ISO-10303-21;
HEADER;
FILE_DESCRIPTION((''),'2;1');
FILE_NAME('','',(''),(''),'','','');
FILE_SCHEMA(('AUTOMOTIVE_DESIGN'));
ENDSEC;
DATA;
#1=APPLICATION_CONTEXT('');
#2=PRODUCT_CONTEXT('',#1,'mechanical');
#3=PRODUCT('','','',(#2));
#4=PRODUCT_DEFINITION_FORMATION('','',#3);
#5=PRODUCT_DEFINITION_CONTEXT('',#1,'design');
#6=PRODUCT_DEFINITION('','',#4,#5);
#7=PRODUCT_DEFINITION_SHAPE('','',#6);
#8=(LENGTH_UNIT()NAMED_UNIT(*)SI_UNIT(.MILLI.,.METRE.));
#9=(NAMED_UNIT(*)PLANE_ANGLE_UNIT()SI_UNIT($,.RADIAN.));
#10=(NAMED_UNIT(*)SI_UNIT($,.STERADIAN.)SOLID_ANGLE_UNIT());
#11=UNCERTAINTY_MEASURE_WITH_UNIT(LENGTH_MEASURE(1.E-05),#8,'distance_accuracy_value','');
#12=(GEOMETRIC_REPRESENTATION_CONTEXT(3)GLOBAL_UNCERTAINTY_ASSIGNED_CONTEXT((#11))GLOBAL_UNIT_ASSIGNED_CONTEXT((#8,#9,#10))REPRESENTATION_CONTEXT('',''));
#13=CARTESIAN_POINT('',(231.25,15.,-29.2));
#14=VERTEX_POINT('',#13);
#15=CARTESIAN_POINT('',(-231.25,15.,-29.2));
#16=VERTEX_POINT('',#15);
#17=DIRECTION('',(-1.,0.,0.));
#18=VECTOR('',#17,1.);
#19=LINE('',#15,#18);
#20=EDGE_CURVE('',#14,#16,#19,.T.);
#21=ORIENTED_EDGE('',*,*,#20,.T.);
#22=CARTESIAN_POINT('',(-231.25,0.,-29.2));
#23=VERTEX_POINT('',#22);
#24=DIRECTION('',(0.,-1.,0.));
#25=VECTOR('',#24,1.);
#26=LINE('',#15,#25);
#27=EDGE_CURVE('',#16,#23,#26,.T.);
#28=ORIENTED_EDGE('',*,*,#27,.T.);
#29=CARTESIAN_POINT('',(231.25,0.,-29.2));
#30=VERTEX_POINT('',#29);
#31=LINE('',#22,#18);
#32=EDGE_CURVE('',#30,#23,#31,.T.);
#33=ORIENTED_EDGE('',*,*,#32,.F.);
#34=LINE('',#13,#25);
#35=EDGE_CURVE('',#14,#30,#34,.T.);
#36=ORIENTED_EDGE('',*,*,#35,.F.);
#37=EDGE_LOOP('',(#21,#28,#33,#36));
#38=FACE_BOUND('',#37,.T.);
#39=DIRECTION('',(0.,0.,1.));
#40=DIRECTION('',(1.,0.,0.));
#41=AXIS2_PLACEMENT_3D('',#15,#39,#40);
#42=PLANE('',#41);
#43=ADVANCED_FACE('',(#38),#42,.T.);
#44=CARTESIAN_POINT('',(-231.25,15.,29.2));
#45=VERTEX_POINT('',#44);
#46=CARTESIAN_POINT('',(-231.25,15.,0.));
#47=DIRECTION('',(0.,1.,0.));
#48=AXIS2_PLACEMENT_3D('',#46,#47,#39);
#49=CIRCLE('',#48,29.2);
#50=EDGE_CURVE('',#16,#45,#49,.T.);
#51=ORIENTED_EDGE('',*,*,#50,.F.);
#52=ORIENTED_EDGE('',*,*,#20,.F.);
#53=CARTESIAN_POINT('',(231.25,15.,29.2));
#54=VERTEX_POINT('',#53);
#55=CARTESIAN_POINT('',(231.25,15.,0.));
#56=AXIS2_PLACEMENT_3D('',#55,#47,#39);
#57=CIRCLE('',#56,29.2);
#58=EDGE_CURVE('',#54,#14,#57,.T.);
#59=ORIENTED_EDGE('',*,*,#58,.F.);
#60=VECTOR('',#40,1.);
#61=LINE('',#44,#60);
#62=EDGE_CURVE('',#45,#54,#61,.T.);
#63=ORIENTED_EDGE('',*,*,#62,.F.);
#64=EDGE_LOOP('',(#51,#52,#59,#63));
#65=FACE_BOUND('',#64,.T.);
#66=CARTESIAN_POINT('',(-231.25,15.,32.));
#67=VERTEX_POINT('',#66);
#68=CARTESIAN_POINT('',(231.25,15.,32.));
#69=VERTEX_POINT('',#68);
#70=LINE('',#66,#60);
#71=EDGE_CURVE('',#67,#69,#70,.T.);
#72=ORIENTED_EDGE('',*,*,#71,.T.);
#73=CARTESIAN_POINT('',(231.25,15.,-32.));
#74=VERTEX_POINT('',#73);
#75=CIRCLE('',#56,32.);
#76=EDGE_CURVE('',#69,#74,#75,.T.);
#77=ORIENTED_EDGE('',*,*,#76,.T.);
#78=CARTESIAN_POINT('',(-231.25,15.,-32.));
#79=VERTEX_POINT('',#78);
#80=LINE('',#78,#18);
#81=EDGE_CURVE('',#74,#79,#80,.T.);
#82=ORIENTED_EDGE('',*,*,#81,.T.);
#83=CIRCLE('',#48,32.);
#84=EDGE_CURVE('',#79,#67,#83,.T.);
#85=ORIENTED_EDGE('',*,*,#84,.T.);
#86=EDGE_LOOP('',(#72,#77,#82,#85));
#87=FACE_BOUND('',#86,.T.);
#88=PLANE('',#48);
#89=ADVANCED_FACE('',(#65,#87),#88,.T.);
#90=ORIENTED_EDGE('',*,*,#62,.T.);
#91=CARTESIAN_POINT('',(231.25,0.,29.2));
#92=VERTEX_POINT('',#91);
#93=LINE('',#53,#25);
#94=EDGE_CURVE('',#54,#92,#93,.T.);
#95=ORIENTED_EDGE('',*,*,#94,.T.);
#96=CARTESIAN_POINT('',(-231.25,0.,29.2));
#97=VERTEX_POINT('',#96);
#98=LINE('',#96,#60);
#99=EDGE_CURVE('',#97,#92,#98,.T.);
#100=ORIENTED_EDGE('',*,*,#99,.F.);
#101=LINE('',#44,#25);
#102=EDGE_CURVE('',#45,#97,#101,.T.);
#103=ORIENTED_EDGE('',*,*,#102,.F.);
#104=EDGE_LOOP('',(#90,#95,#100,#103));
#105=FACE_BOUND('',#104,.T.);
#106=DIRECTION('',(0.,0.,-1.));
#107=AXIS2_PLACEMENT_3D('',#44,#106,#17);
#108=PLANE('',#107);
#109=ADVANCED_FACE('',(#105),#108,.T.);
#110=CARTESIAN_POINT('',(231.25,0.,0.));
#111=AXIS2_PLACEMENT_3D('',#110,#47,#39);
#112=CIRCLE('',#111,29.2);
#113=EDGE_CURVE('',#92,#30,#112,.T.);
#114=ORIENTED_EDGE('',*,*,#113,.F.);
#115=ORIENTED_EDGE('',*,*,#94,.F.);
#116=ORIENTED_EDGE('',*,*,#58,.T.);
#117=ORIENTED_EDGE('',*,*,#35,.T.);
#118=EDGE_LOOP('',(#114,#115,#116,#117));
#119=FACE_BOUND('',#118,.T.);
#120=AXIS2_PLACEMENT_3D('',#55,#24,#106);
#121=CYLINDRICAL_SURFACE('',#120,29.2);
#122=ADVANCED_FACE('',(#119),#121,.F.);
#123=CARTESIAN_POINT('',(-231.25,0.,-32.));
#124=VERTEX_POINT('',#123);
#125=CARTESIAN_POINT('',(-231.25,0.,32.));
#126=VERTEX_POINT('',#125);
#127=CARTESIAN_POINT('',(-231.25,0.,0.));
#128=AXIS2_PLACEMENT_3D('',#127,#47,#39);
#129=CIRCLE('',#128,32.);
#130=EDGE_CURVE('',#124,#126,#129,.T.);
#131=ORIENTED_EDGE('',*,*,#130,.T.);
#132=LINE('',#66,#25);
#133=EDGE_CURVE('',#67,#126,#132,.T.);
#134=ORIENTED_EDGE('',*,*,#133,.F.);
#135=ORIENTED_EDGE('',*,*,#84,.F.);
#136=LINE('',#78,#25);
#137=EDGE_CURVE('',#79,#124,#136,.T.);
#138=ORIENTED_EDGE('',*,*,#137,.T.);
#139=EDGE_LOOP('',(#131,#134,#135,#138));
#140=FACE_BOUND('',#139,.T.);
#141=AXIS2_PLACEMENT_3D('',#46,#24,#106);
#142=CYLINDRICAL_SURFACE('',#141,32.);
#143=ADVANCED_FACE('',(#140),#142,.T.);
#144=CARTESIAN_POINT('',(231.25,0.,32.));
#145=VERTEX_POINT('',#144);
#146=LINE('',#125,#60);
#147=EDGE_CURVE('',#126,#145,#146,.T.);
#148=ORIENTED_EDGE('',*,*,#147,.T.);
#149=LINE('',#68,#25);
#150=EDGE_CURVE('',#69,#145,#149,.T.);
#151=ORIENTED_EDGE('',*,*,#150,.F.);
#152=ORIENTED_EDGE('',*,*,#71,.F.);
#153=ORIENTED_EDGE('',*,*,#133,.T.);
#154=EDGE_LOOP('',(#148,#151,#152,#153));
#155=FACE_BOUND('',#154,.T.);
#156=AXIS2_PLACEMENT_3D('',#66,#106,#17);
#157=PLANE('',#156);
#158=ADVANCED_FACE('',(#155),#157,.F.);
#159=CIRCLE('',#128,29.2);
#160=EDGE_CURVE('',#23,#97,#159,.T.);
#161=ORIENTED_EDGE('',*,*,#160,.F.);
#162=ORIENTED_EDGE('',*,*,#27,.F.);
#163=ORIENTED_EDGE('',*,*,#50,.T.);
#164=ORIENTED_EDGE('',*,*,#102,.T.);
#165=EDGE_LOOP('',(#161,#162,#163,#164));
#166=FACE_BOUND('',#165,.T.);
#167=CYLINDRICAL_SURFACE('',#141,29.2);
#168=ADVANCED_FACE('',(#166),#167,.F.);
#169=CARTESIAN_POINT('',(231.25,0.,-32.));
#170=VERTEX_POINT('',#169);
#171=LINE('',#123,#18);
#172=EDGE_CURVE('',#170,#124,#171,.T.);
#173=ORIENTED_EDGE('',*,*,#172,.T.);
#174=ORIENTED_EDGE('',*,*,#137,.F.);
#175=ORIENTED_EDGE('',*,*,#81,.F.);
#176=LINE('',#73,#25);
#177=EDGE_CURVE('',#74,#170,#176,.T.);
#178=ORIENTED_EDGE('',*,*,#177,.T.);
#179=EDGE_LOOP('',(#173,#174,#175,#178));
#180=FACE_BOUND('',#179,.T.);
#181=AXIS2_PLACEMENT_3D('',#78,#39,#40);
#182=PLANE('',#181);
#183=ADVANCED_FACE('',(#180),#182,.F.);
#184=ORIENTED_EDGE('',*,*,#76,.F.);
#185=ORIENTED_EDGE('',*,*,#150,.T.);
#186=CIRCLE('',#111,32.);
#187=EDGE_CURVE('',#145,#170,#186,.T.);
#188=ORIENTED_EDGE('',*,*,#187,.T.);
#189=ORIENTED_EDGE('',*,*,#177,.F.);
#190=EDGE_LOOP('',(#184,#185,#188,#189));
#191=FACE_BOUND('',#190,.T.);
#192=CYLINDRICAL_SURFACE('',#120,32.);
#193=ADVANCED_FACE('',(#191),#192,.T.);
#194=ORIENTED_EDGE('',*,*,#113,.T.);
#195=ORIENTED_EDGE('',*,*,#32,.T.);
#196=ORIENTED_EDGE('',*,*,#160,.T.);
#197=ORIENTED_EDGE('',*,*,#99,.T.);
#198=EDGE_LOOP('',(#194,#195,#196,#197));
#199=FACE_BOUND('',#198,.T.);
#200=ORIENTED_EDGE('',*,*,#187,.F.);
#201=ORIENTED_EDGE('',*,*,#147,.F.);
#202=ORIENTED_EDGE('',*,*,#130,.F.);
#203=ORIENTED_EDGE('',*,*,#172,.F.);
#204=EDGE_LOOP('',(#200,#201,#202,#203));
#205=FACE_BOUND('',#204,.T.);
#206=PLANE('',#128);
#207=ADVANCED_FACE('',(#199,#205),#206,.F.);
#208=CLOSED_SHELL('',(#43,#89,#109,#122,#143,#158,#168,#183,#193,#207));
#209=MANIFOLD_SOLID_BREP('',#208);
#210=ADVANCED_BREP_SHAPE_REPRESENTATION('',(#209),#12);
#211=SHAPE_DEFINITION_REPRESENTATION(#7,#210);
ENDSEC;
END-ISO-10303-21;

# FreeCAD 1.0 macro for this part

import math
import FreeCAD as App
import Part
import Sketcher

doc = App.newDocument("Part")
body = doc.addObject("PartDesign::Body", "Body")

sketch1 = body.newObject("Sketcher::SketchObject", "Sketch")
sketch1.AttachmentSupport = (doc.getObject("XZ_Plane"), [""])
sketch1.MapMode = "FlatFace"
sketch1.addGeometry([
    Part.LineSegment(App.Vector(231, -32, 0), App.Vector(-231, -32, 0)),
    Part.ArcOfCircle(Part.Circle(App.Vector(-231, 0, 0), App.Vector(0, 0, 1), 32), math.radians(90), math.radians(270)),
    Part.LineSegment(App.Vector(-231, 32, 0), App.Vector(231, 32, 0)),
    Part.ArcOfCircle(Part.Circle(App.Vector(231, 0, 0), App.Vector(0, 0, 1), 32), math.radians(-90), math.radians(90)),
    Part.LineSegment(App.Vector(-231, -29, 0), App.Vector(231, -29, 0)),
    Part.ArcOfCircle(Part.Circle(App.Vector(231, 0, 0), App.Vector(0, 0, 1), 29), math.radians(-90), math.radians(90)),
    Part.LineSegment(App.Vector(231, 29, 0), App.Vector(-231, 29, 0)),
    Part.ArcOfCircle(Part.Circle(App.Vector(-231, 0, 0), App.Vector(0, 0, 1), 29), math.radians(90), math.radians(270)),
], False)
sketch1.addConstraint([
    Sketcher.Constraint("Tangent", 0, 2, 1, 2),
    Sketcher.Constraint("Tangent", 1, 1, 2, 1),
    Sketcher.Constraint("Tangent", 2, 2, 3, 2),
    Sketcher.Constraint("Tangent", 3, 1, 0, 1),
    Sketcher.Constraint("Tangent", 4, 2, 5, 1),
    Sketcher.Constraint("Tangent", 5, 2, 6, 1),
    Sketcher.Constraint("Tangent", 6, 2, 7, 1),
    Sketcher.Constraint("Tangent", 7, 2, 4, 1),
    Sketcher.Constraint("Horizontal", 0),
    Sketcher.Constraint("Horizontal", 2),
    Sketcher.Constraint("Horizontal", 4),
    Sketcher.Constraint("Horizontal", 6),
    Sketcher.Constraint("Coincident", 5, 3, 3, 3),
    Sketcher.Constraint("Symmetric", 1, 3, 3, 3, -1, 1),
    Sketcher.Constraint("Vertical", 7, 3, 0, 2),
    Sketcher.Constraint("Radius", 1, 32.0),
    Sketcher.Constraint("Radius", 5, 29.2),
    Sketcher.Constraint("DistanceX", 0, 2, 0, 1, 462.5),
])
pad1 = body.newObject("PartDesign::Pad", "Pad")
pad1.Profile = sketch1
pad1.Length = 15
pad1.Reversed = True

doc.recompute()
